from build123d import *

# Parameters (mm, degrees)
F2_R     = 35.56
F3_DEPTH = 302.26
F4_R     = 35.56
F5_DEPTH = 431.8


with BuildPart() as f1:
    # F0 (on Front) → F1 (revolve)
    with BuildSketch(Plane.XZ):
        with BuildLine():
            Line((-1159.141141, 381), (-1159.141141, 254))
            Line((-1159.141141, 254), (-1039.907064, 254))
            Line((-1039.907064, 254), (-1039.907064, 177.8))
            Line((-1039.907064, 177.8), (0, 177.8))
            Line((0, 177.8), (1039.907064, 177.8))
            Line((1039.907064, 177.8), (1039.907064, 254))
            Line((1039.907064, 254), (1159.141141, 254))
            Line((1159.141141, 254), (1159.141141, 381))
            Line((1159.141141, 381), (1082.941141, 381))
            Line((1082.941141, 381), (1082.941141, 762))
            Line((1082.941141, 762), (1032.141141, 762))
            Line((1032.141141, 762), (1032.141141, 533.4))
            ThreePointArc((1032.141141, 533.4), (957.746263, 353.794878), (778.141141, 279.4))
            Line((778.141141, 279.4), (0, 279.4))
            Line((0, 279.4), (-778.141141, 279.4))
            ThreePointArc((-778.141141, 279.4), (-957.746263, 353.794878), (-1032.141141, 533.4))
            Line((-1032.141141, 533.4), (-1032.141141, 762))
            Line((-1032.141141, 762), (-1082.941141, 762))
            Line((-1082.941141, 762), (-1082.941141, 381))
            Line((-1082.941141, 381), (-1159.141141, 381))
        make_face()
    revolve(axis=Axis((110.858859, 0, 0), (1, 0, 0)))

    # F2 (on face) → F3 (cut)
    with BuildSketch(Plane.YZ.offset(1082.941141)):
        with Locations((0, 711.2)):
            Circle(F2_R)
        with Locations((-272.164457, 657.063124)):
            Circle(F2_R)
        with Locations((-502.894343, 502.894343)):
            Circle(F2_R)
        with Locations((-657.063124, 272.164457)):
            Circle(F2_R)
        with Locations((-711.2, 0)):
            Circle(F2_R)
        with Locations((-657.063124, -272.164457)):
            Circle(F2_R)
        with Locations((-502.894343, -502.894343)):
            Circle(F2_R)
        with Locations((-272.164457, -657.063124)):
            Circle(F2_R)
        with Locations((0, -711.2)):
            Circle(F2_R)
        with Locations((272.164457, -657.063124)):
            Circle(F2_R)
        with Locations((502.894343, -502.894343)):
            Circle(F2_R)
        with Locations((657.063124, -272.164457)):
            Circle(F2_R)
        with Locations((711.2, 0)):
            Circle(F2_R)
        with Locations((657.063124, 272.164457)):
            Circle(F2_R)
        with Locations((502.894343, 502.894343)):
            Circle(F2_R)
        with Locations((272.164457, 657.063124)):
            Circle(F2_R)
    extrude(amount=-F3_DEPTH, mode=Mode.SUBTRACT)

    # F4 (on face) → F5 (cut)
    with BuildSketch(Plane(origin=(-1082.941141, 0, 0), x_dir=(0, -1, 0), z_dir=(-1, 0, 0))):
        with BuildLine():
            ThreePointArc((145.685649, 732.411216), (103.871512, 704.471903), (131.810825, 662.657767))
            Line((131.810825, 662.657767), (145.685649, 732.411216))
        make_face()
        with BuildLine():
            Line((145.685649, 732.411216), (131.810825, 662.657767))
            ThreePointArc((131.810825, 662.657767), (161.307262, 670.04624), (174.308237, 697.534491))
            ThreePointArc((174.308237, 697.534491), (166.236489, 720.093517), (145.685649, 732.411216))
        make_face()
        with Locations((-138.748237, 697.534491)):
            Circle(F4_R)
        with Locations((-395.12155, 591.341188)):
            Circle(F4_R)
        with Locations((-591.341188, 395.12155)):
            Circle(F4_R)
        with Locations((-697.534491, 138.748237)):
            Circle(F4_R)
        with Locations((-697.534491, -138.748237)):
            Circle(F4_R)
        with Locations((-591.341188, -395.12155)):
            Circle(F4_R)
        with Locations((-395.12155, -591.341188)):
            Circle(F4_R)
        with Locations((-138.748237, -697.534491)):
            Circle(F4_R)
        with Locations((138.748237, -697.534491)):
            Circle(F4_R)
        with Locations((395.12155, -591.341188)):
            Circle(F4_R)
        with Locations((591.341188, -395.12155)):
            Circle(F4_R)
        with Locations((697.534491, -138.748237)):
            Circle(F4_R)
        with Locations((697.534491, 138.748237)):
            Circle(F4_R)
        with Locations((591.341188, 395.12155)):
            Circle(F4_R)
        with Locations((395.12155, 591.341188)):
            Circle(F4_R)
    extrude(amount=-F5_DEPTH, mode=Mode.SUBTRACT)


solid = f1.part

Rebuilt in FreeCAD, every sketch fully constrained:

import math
import FreeCAD as App
import Part
import Sketcher
Q = App.Units.Quantity

doc = App.newDocument("Part")
body = doc.addObject("PartDesign::Body", "Body")

sketch1 = body.newObject("Sketcher::SketchObject", "Sketch")
sketch1.AttachmentSupport = (doc.getObject("XZ_Plane"), [""])
sketch1.MapMode = "FlatFace"
sketch1.addGeometry([
    Part.LineSegment(App.Vector(-1159, 381, 0), App.Vector(-1159, 254, 0)),
    Part.LineSegment(App.Vector(-1159, 254, 0), App.Vector(-1040, 254, 0)),
    Part.LineSegment(App.Vector(-1040, 254, 0), App.Vector(-1040, 178, 0)),
    Part.LineSegment(App.Vector(-1040, 178, 0), App.Vector(1040, 178, 0)),
    Part.LineSegment(App.Vector(1040, 178, 0), App.Vector(1040, 254, 0)),
    Part.LineSegment(App.Vector(1040, 254, 0), App.Vector(1159, 254, 0)),
    Part.LineSegment(App.Vector(1159, 254, 0), App.Vector(1159, 381, 0)),
    Part.LineSegment(App.Vector(1159, 381, 0), App.Vector(1083, 381, 0)),
    Part.LineSegment(App.Vector(1083, 381, 0), App.Vector(1083, 762, 0)),
    Part.LineSegment(App.Vector(1083, 762, 0), App.Vector(1032, 762, 0)),
    Part.LineSegment(App.Vector(1032, 762, 0), App.Vector(1032, 533, 0)),
    Part.ArcOfCircle(Part.Circle(App.Vector(778, 533, 0), App.Vector(0, 0, 1), 254), math.radians(-90), math.radians(0)),
    Part.LineSegment(App.Vector(778, 279, 0), App.Vector(-778, 279, 0)),
    Part.ArcOfCircle(Part.Circle(App.Vector(-778, 533, 0), App.Vector(0, 0, 1), 254), math.radians(-180), math.radians(-90)),
    Part.LineSegment(App.Vector(-1032, 533, 0), App.Vector(-1032, 762, 0)),
    Part.LineSegment(App.Vector(-1032, 762, 0), App.Vector(-1083, 762, 0)),
    Part.LineSegment(App.Vector(-1083, 762, 0), App.Vector(-1083, 381, 0)),
    Part.LineSegment(App.Vector(-1083, 381, 0), App.Vector(-1159, 381, 0)),
], False)
sketch1.addConstraint([
    Sketcher.Constraint("Coincident", 0, 2, 1, 1),
    Sketcher.Constraint("Coincident", 1, 2, 2, 1),
    Sketcher.Constraint("Coincident", 2, 2, 3, 1),
    Sketcher.Constraint("Coincident", 3, 2, 4, 1),
    Sketcher.Constraint("Coincident", 4, 2, 5, 1),
    Sketcher.Constraint("Coincident", 5, 2, 6, 1),
    Sketcher.Constraint("Coincident", 6, 2, 7, 1),
    Sketcher.Constraint("Coincident", 7, 2, 8, 1),
    Sketcher.Constraint("Coincident", 8, 2, 9, 1),
    Sketcher.Constraint("Coincident", 9, 2, 10, 1),
    Sketcher.Constraint("Tangent", 10, 2, 11, 2),
    Sketcher.Constraint("Tangent", 11, 1, 12, 1),
    Sketcher.Constraint("Tangent", 12, 2, 13, 2),
    Sketcher.Constraint("Tangent", 13, 1, 14, 1),
    Sketcher.Constraint("Coincident", 14, 2, 15, 1),
    Sketcher.Constraint("Coincident", 15, 2, 16, 1),
    Sketcher.Constraint("Coincident", 16, 2, 17, 1),
    Sketcher.Constraint("Coincident", 17, 2, 0, 1),
    Sketcher.Constraint("Vertical", 0),
    Sketcher.Constraint("Horizontal", 1),
    Sketcher.Constraint("Vertical", 2),
    Sketcher.Constraint("Horizontal", 3),
    Sketcher.Constraint("Vertical", 4),
    Sketcher.Constraint("Horizontal", 5),
    Sketcher.Constraint("Vertical", 6),
    Sketcher.Constraint("Horizontal", 7),
    Sketcher.Constraint("Vertical", 8),
    Sketcher.Constraint("Horizontal", 9),
    Sketcher.Constraint("Vertical", 10),
    Sketcher.Constraint("Horizontal", 12),
    Sketcher.Constraint("Vertical", 14),
    Sketcher.Constraint("Horizontal", 15),
    Sketcher.Constraint("Vertical", 16),
    Sketcher.Constraint("Horizontal", 17),
    Sketcher.Constraint("Equal", 11, 13),
    Sketcher.Constraint("Symmetric", 1, 2, 4, 2, -2),
    Sketcher.Constraint("Symmetric", 9, 2, 14, 2, -2),
    Sketcher.Constraint("Symmetric", 7, 2, 16, 2, -2),
    Sketcher.Constraint("Equal", 1, 5),
    Sketcher.Constraint("Equal", 17, 2),
    Sketcher.Constraint("Radius", 11, Q("10.0000001 in")),
    Sketcher.Constraint("DistanceX", 7, 2, 7, 1, Q("3 in")),
    Sketcher.Constraint("DistanceX", 9, 2, 9, 1, Q("2 in")),
    Sketcher.Constraint("DistanceY", 0, 2, 0, 1, Q("5 in")),
    Sketcher.Constraint("DistanceY", 8, 1, 8, 2, Q("15 in")),
    Sketcher.Constraint("DistanceY", 10, 2, 10, 1, Q("9 in")),
    Sketcher.Constraint("DistanceY", -1, 1, 11, 3, Q("21.0000001 in")),
    Sketcher.Constraint("DistanceX", 12, 2, 12, 1, 1556.282282),
    Sketcher.Constraint("DistanceX", 1, 1, 1, 2, 119.234077),
])
revolution = body.newObject("PartDesign::Revolution", "Revolution")
revolution.Profile = sketch1
revolution.ReferenceAxis = (sketch1, ["H_Axis"])
revolution.Angle = 360

sketch2 = body.newObject("Sketcher::SketchObject", "Sketch001")
sketch2.AttachmentSupport = (doc.getObject("YZ_Plane"), [""])
sketch2.MapMode = "FlatFace"
sketch2.AttachmentOffset = App.Placement(App.Vector(0, 0, 1082.941141), App.Rotation())
sketch2.addGeometry([
    Part.Circle(App.Vector(0, 711, 0), App.Vector(0, 0, 1), 36),
    Part.Circle(App.Vector(-272, 657, 0), App.Vector(0, 0, 1), 36),
    Part.Circle(App.Vector(-503, 503, 0), App.Vector(0, 0, 1), 36),
    Part.Circle(App.Vector(-657, 272, 0), App.Vector(0, 0, 1), 36),
    Part.Circle(App.Vector(-711, 0, 0), App.Vector(0, 0, 1), 36),
    Part.Circle(App.Vector(-657, -272, 0), App.Vector(0, 0, 1), 36),
    Part.Circle(App.Vector(-503, -503, 0), App.Vector(0, 0, 1), 36),
    Part.Circle(App.Vector(-272, -657, 0), App.Vector(0, 0, 1), 36),
    Part.Circle(App.Vector(0, -711, 0), App.Vector(0, 0, 1), 36),
    Part.Circle(App.Vector(272, -657, 0), App.Vector(0, 0, 1), 36),
    Part.Circle(App.Vector(503, -503, 0), App.Vector(0, 0, 1), 36),
    Part.Circle(App.Vector(657, -272, 0), App.Vector(0, 0, 1), 36),
    Part.Circle(App.Vector(711, 0, 0), App.Vector(0, 0, 1), 36),
    Part.Circle(App.Vector(657, 272, 0), App.Vector(0, 0, 1), 36),
    Part.Circle(App.Vector(503, 503, 0), App.Vector(0, 0, 1), 36),
    Part.Circle(App.Vector(272, 657, 0), App.Vector(0, 0, 1), 36),
], False)
sketch2.addConstraint([
    Sketcher.Constraint("Equal", 0, 1),
    Sketcher.Constraint("Equal", 1, 2),
    Sketcher.Constraint("Equal", 2, 3),
    Sketcher.Constraint("Equal", 3, 4),
    Sketcher.Constraint("Equal", 4, 5),
    Sketcher.Constraint("Equal", 5, 6),
    Sketcher.Constraint("Equal", 6, 7),
    Sketcher.Constraint("Equal", 7, 8),
    Sketcher.Constraint("Equal", 8, 9),
    Sketcher.Constraint("Equal", 9, 10),
    Sketcher.Constraint("Equal", 10, 11),
    Sketcher.Constraint("Equal", 11, 12),
    Sketcher.Constraint("Equal", 12, 13),
    Sketcher.Constraint("Equal", 13, 14),
    Sketcher.Constraint("Equal", 14, 15),
    Sketcher.Constraint("Symmetric", 0, 3, 8, 3, -1, 1),
    Sketcher.Constraint("Symmetric", 1, 3, 9, 3, -1, 1),
    Sketcher.Constraint("Symmetric", 2, 3, 10, 3, -1, 1),
    Sketcher.Constraint("Symmetric", 3, 3, 11, 3, -1, 1),
    Sketcher.Constraint("Symmetric", 4, 3, 12, 3, -1, 1),
    Sketcher.Constraint("Symmetric", 5, 3, 13, 3, -1, 1),
    Sketcher.Constraint("Symmetric", 6, 3, 14, 3, -1, 1),
    Sketcher.Constraint("Symmetric", 7, 3, 15, 3, -1, 1),
    Sketcher.Constraint("Symmetric", 7, 3, 9, 3, -2),
    Sketcher.Constraint("Symmetric", 6, 3, 10, 3, -2),
    Sketcher.Constraint("Symmetric", 5, 3, 11, 3, -2),
    Sketcher.Constraint("PointOnObject", 0, 3, -2),
    Sketcher.Constraint("PointOnObject", 4, 3, -1),
    Sketcher.Constraint("Diameter", 0, Q("2.8 in")),
    Sketcher.Constraint("DistanceY", -1, 1, 0, 3, Q("28 in")),
    Sketcher.Constraint("DistanceX", 4, 3, -1, 1, Q("28 in")),
    Sketcher.Constraint("DistanceY", 5, 3, 2, 3, 775.0588),
    Sketcher.Constraint("DistanceX", 6, 3, 9, 3, 775.0588),
    Sketcher.Constraint("DistanceY", 2, 3, 1, 3, 154.168781),
    Sketcher.Constraint("DistanceX", 3, 3, 2, 3, 154.168781),
    Sketcher.Constraint("DistanceX", 1, 3, -1, 1, 272.164457),
    Sketcher.Constraint("DistanceY", -1, 1, 1, 3, 657.063124),
])
pocket1 = body.newObject("PartDesign::Pocket", "Pocket")
pocket1.Profile = sketch2
pocket1.Length = Q("11.9 in")

sketch3 = body.newObject("Sketcher::SketchObject", "Sketch002")
sketch3.AttachmentSupport = (doc.getObject("YZ_Plane"), [""])
sketch3.MapMode = "FlatFace"
sketch3.AttachmentOffset = App.Placement(App.Vector(0, 0, -1082.941141), App.Rotation())
sketch3.addGeometry([
    Part.ArcOfCircle(Part.Circle(App.Vector(-139, 698, 0), App.Vector(0, 0, 1), 36), math.radians(-79), math.radians(101)),
    Part.ArcOfCircle(Part.Circle(App.Vector(-139, 698, 0), App.Vector(0, 0, 1), 36), math.radians(-180), math.radians(-79)),
    Part.ArcOfCircle(Part.Circle(App.Vector(-139, 698, 0), App.Vector(0, 0, 1), 36), math.radians(101), math.radians(180)),
    Part.Circle(App.Vector(139, 698, 0), App.Vector(0, 0, 1), 36),
    Part.Circle(App.Vector(395, 591, 0), App.Vector(0, 0, 1), 36),
    Part.Circle(App.Vector(591, 395, 0), App.Vector(0, 0, 1), 36),
    Part.Circle(App.Vector(698, 139, 0), App.Vector(0, 0, 1), 36),
    Part.Circle(App.Vector(698, -139, 0), App.Vector(0, 0, 1), 36),
    Part.Circle(App.Vector(591, -395, 0), App.Vector(0, 0, 1), 36),
    Part.Circle(App.Vector(395, -591, 0), App.Vector(0, 0, 1), 36),
    Part.Circle(App.Vector(139, -698, 0), App.Vector(0, 0, 1), 36),
    Part.Circle(App.Vector(-139, -698, 0), App.Vector(0, 0, 1), 36),
    Part.Circle(App.Vector(-395, -591, 0), App.Vector(0, 0, 1), 36),
    Part.Circle(App.Vector(-591, -395, 0), App.Vector(0, 0, 1), 36),
    Part.Circle(App.Vector(-698, -139, 0), App.Vector(0, 0, 1), 36),
    Part.Circle(App.Vector(-698, 139, 0), App.Vector(0, 0, 1), 36),
    Part.Circle(App.Vector(-591, 395, 0), App.Vector(0, 0, 1), 36),
    Part.Circle(App.Vector(-395, 591, 0), App.Vector(0, 0, 1), 36),
], False)
sketch3.addConstraint([
    Sketcher.Constraint("Tangent", 0, 1, 1, 2),
    Sketcher.Constraint("Tangent", 1, 1, 2, 2),
    Sketcher.Constraint("Tangent", 2, 1, 0, 2),
    Sketcher.Constraint("Equal", 2, 3),
    Sketcher.Constraint("Equal", 3, 4),
    Sketcher.Constraint("Equal", 4, 5),
    Sketcher.Constraint("Equal", 5, 6),
    Sketcher.Constraint("Equal", 6, 7),
    Sketcher.Constraint("Equal", 7, 8),
    Sketcher.Constraint("Equal", 8, 9),
    Sketcher.Constraint("Equal", 9, 10),
    Sketcher.Constraint("Equal", 10, 11),
    Sketcher.Constraint("Equal", 11, 12),
    Sketcher.Constraint("Equal", 12, 13),
    Sketcher.Constraint("Equal", 13, 14),
    Sketcher.Constraint("Equal", 14, 15),
    Sketcher.Constraint("Equal", 15, 16),
    Sketcher.Constraint("Equal", 16, 17),
    Sketcher.Constraint("Symmetric", 0, 3, 10, 3, -1, 1),
    Sketcher.Constraint("Symmetric", 3, 3, 11, 3, -1, 1),
    Sketcher.Constraint("Symmetric", 4, 3, 12, 3, -1, 1),
    Sketcher.Constraint("Symmetric", 5, 3, 13, 3, -1, 1),
    Sketcher.Constraint("Symmetric", 6, 3, 14, 3, -1, 1),
    Sketcher.Constraint("Symmetric", 7, 3, 15, 3, -1, 1),
    Sketcher.Constraint("Symmetric", 8, 3, 16, 3, -1, 1),
    Sketcher.Constraint("Symmetric", 9, 3, 17, 3, -1, 1),
    Sketcher.Constraint("Symmetric", 0, 3, 3, 3, -2),
    Sketcher.Constraint("Symmetric", 9, 3, 12, 3, -2),
    Sketcher.Constraint("Symmetric", 8, 3, 13, 3, -2),
    Sketcher.Constraint("Symmetric", 7, 3, 14, 3, -2),
    Sketcher.Constraint("Horizontal", 3, 3, 1, 1),
    Sketcher.Constraint("Diameter", 3, Q("2.8 in")),
    Sketcher.Constraint("DistanceY", 8, 3, 5, 3, 790.2431),
    Sketcher.Constraint("DistanceX", 12, 3, 9, 3, 790.2431),
    Sketcher.Constraint("DistanceY", -1, 1, 0, 3, 697.534492),
    Sketcher.Constraint("DistanceX", 2, 3, -1, 1, 138.748239),
    Sketcher.Constraint("DistanceY", -1, 1, 4, 3, 591.341188),
    Sketcher.Constraint("DistanceX", -1, 1, 5, 3, 591.341188),
    Sketcher.Constraint("DistanceX", -1, 1, 6, 3, 697.534491),
    Sketcher.Constraint("DistanceX", 2, 1, -1, 1, 145.685649),
    Sketcher.Constraint("DistanceY", 6, 3, 4, 3, 452.592951),
    Sketcher.Constraint("DistanceX", 0, 3, 0, 1, 6.937412),
])
pocket2 = body.newObject("PartDesign::Pocket", "Pocket001")
pocket2.Profile = sketch3
pocket2.Length = Q("17 in")
pocket2.Reversed = True

doc.recompute()
